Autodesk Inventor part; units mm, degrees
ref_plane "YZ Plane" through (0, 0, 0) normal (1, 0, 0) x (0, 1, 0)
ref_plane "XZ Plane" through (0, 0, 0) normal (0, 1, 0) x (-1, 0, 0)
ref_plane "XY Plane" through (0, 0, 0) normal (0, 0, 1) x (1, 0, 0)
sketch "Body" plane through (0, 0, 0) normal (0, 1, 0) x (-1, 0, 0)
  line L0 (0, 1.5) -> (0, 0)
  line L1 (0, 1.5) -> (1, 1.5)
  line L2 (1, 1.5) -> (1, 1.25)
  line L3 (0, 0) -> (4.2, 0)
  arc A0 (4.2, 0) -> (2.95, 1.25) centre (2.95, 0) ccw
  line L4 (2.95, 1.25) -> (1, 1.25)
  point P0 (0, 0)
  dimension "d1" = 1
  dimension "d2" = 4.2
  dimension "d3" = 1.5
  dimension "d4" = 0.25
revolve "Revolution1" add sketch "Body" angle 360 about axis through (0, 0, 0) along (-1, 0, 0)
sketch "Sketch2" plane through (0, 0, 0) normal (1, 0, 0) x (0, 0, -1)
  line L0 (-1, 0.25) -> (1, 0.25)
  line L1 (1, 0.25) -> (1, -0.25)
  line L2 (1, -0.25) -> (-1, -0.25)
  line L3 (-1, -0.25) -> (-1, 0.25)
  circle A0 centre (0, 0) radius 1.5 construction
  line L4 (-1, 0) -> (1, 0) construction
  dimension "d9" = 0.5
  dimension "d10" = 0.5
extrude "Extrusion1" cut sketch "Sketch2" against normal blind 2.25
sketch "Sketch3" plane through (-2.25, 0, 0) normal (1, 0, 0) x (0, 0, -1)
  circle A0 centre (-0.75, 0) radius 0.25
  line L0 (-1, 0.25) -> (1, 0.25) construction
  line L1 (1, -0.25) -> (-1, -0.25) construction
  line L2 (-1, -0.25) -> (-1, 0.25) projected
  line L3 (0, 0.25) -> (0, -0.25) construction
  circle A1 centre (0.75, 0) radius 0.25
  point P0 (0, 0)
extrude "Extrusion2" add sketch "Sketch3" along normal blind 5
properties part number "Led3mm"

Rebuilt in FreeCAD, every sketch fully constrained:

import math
import FreeCAD as App
import Part
import Sketcher
from FreeCAD import Vector
Q = App.Units.Quantity


def add_polygon(sketch, points):
    """Adds a closed chain of lines whose ends are joined by coincident constraints."""
    first, n = sketch.GeometryCount, len(points)
    for a, b in zip(points, points[1:] + points[:1]):
        sketch.addGeometry(Part.LineSegment(App.Vector(*a, 0), App.Vector(*b, 0)), False)
    for i in range(n):
        sketch.addConstraint(Sketcher.Constraint("Coincident", first + i, 2, first + (i + 1) % n, 1))

doc = App.newDocument("Part")
body = doc.addObject("PartDesign::Body", "Body")

sketch1 = body.newObject("Sketcher::SketchObject", "Sketch")
sketch1.AttachmentSupport = (doc.getObject("XZ_Plane"), [""])
sketch1.MapMode = "FlatFace"
sketch1.addGeometry([
    Part.LineSegment(Vector(-1, 1.5, 0), Vector(0, 1.5, 0)),
    Part.LineSegment(Vector(0, 1.5, 0), Vector(0, 0, 0)),
    Part.LineSegment(Vector(0, 0, 0), Vector(-4.2, 0, 0)),
    Part.ArcOfCircle(Part.Circle(Vector(-2.95, 0, 0), Vector(0, 0, 1), 1.25), math.radians(90), math.radians(180)),
    Part.LineSegment(Vector(-2.95, 1.25, 0), Vector(-1, 1.25, 0)),
    Part.LineSegment(Vector(-1, 1.25, 0), Vector(-1, 1.5, 0)),
], False)
sketch1.addConstraint([
    Sketcher.Constraint("Coincident", 0, 2, 1, 1),
    Sketcher.Constraint("Coincident", 1, 2, 2, 1),
    Sketcher.Constraint("Coincident", 2, 2, 3, 2),
    Sketcher.Constraint("Tangent", 3, 1, 4, 1),
    Sketcher.Constraint("Coincident", 4, 2, 5, 1),
    Sketcher.Constraint("Coincident", 5, 2, 0, 1),
    Sketcher.Constraint("Horizontal", 0),
    Sketcher.Constraint("Vertical", 1),
    Sketcher.Constraint("Horizontal", 2),
    Sketcher.Constraint("Horizontal", 4),
    Sketcher.Constraint("Vertical", 5),
    Sketcher.Constraint("Coincident", 1, 2, -1, 1),
    Sketcher.Constraint("PointOnObject", 3, 3, -1),
    Sketcher.Constraint("DistanceX", 0, 1, 0, 2, Q("1 mm")),
    Sketcher.Constraint("DistanceX", 2, 2, 2, 1, Q("4.2 mm")),
    Sketcher.Constraint("DistanceY", 1, 2, 1, 1, Q("1.5 mm")),
    Sketcher.Constraint("DistanceY", 5, 1, 5, 2, Q("0.25 mm")),
])
revolution = body.newObject("PartDesign::Revolution", "Revolution")
revolution.Profile = sketch1
revolution.ReferenceAxis = (sketch1, ["H_Axis"])
revolution.Angle = 360

sketch2 = body.newObject("Sketcher::SketchObject", "Sketch001")
sketch2.AttachmentSupport = (doc.getObject("YZ_Plane"), [""])
sketch2.MapMode = "FlatFace"
add_polygon(sketch2, [(0.2, -1), (0.2, 1), (-0.2, 1), (-0.2, -1)])
sketch2.addConstraint([
    Sketcher.Constraint("Vertical", 0),
    Sketcher.Constraint("Horizontal", 1),
    Sketcher.Constraint("Vertical", 2),
    Sketcher.Constraint("Horizontal", 3),
    Sketcher.Constraint("Symmetric", 0, 2, 2, 2, -1, 1),
    Sketcher.Constraint("DistanceX", 1, 2, 1, 1, Q("0.5 mm")),
    Sketcher.Constraint("DistanceY", 0, 1, 0, 2, Q("2 mm")),
])
pocket1 = body.newObject("PartDesign::Pocket", "Pocket")
pocket1.Profile = sketch2
pocket1.Length = 2.25

sketch3 = body.newObject("Sketcher::SketchObject", "Sketch002")
sketch3.AttachmentSupport = (doc.getObject("YZ_Plane"), [""])
sketch3.MapMode = "FlatFace"
sketch3.AttachmentOffset = App.Placement(Vector(0, 0, -2.25), App.Rotation())
sketch3.addGeometry([
    Part.Circle(Vector(0, 0.75, 0), Vector(0, 0, 1), 0.25),
    Part.Circle(Vector(0, -0.75, 0), Vector(0, 0, 1), 0.25),
], False)
sketch3.addConstraint([
    Sketcher.Constraint("Equal", 0, 1),
    Sketcher.Constraint("Symmetric", 0, 3, 1, 3, -1, 1),
    Sketcher.Constraint("PointOnObject", 0, 3, -2),
    Sketcher.Constraint("Diameter", 0, Q("0.5 mm")),
    Sketcher.Constraint("DistanceY", 1, 3, 0, 3, Q("1.5 mm")),
])
pad1 = body.newObject("PartDesign::Pad", "Pad")
pad1.Profile = sketch3
pad1.Length = 5

doc.recompute()
